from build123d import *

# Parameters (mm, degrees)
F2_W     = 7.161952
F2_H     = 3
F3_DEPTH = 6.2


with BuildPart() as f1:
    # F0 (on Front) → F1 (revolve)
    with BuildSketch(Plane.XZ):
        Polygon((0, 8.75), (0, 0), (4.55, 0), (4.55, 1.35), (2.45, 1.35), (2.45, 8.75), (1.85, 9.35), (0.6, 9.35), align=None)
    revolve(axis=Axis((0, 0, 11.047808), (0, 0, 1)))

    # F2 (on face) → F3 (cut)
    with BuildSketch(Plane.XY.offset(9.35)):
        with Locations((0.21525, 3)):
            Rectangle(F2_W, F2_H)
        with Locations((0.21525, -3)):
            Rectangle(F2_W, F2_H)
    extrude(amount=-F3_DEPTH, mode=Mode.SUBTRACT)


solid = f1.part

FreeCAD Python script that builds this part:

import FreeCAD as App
import Part
import Sketcher

doc = App.newDocument("Part")
body = doc.addObject("PartDesign::Body", "Body")

sketch1 = body.newObject("Sketcher::SketchObject", "Sketch")
sketch1.AttachmentSupport = (doc.getObject("XZ_Plane"), [""])
sketch1.MapMode = "FlatFace"
sketch1.addGeometry([
    Part.LineSegment(App.Vector(0, 8.8, 0), App.Vector(0, 0, 0)),
    Part.LineSegment(App.Vector(0, 0, 0), App.Vector(4.5, 0, 0)),
    Part.LineSegment(App.Vector(4.5, 0, 0), App.Vector(4.5, 1.4, 0)),
    Part.LineSegment(App.Vector(4.5, 1.4, 0), App.Vector(2.5, 1.4, 0)),
    Part.LineSegment(App.Vector(2.5, 1.4, 0), App.Vector(2.5, 8.8, 0)),
    Part.LineSegment(App.Vector(2.5, 8.8, 0), App.Vector(1.9, 9.3, 0)),
    Part.LineSegment(App.Vector(1.9, 9.3, 0), App.Vector(0.6, 9.3, 0)),
    Part.LineSegment(App.Vector(0.6, 9.3, 0), App.Vector(0, 8.8, 0)),
], False)
sketch1.addConstraint([
    Sketcher.Constraint("Coincident", 0, 2, 1, 1),
    Sketcher.Constraint("Coincident", 1, 2, 2, 1),
    Sketcher.Constraint("Coincident", 2, 2, 3, 1),
    Sketcher.Constraint("Coincident", 3, 2, 4, 1),
    Sketcher.Constraint("Coincident", 4, 2, 5, 1),
    Sketcher.Constraint("Coincident", 5, 2, 6, 1),
    Sketcher.Constraint("Coincident", 6, 2, 7, 1),
    Sketcher.Constraint("Coincident", 7, 2, 0, 1),
    Sketcher.Constraint("Vertical", 0),
    Sketcher.Constraint("Horizontal", 1),
    Sketcher.Constraint("Vertical", 2),
    Sketcher.Constraint("Horizontal", 3),
    Sketcher.Constraint("Vertical", 4),
    Sketcher.Constraint("Horizontal", 6),
    Sketcher.Constraint("Coincident", 0, 2, -1, 1),
    Sketcher.Constraint("Perpendicular", 5, 7),
    Sketcher.Constraint("Horizontal", 4, 2, 7, 2),
    Sketcher.Constraint("Equal", 5, 7),
    Sketcher.Constraint("DistanceX", 3, 2, 3, 1, 2.1),
    Sketcher.Constraint("DistanceY", 4, 1, 4, 2, 7.4),
    Sketcher.Constraint("DistanceY", 3, 2, 5, 2, 8.0),
    Sketcher.Constraint("DistanceX", 1, 1, 1, 2, 4.55),
    Sketcher.Constraint("DistanceY", 0, 2, 0, 1, 8.75),
])
revolution = body.newObject("PartDesign::Revolution", "Revolution")
revolution.Profile = sketch1
revolution.ReferenceAxis = (sketch1, ["V_Axis"])
revolution.Angle = 360

sketch2 = body.newObject("Sketcher::SketchObject", "Sketch001")
sketch2.AttachmentSupport = (doc.getObject("XY_Plane"), [""])
sketch2.MapMode = "FlatFace"
sketch2.AttachmentOffset = App.Placement(App.Vector(0, 0, 9.35), App.Rotation())
sketch2.addGeometry([
    Part.LineSegment(App.Vector(-3.4, 4.5, 0), App.Vector(-3.4, 1.5, 0)),
    Part.LineSegment(App.Vector(-3.4, 1.5, 0), App.Vector(3.8, 1.5, 0)),
    Part.LineSegment(App.Vector(3.8, 1.5, 0), App.Vector(3.8, 4.5, 0)),
    Part.LineSegment(App.Vector(3.8, 4.5, 0), App.Vector(-3.4, 4.5, 0)),
    Part.LineSegment(App.Vector(-3.4, -1.5, 0), App.Vector(-3.4, -4.5, 0)),
    Part.LineSegment(App.Vector(-3.4, -4.5, 0), App.Vector(3.8, -4.5, 0)),
    Part.LineSegment(App.Vector(3.8, -4.5, 0), App.Vector(3.8, -1.5, 0)),
    Part.LineSegment(App.Vector(3.8, -1.5, 0), App.Vector(-3.4, -1.5, 0)),
], False)
sketch2.addConstraint([
    Sketcher.Constraint("Coincident", 0, 2, 1, 1),
    Sketcher.Constraint("Coincident", 1, 2, 2, 1),
    Sketcher.Constraint("Coincident", 2, 2, 3, 1),
    Sketcher.Constraint("Coincident", 3, 2, 0, 1),
    Sketcher.Constraint("Coincident", 4, 2, 5, 1),
    Sketcher.Constraint("Coincident", 5, 2, 6, 1),
    Sketcher.Constraint("Coincident", 6, 2, 7, 1),
    Sketcher.Constraint("Coincident", 7, 2, 4, 1),
    Sketcher.Constraint("Vertical", 0),
    Sketcher.Constraint("Horizontal", 1),
    Sketcher.Constraint("Vertical", 2),
    Sketcher.Constraint("Horizontal", 3),
    Sketcher.Constraint("Vertical", 4),
    Sketcher.Constraint("Horizontal", 5),
    Sketcher.Constraint("Vertical", 6),
    Sketcher.Constraint("Horizontal", 7),
    Sketcher.Constraint("Symmetric", 3, 2, 4, 2, -1),
    Sketcher.Constraint("Symmetric", 1, 2, 6, 2, -1),
    Sketcher.Constraint("DistanceY", 0, 2, 0, 1, 3.0),
    Sketcher.Constraint("DistanceY", 4, 2, 0, 2, 6.0),
    Sketcher.Constraint("DistanceX", 1, 1, 1, 2, 7.161952),
    Sketcher.Constraint("DistanceX", 0, 2, -1, 1, 3.365726),
])
pocket1 = body.newObject("PartDesign::Pocket", "Pocket")
pocket1.Profile = sketch2
pocket1.Length = 6.2

doc.recompute()
